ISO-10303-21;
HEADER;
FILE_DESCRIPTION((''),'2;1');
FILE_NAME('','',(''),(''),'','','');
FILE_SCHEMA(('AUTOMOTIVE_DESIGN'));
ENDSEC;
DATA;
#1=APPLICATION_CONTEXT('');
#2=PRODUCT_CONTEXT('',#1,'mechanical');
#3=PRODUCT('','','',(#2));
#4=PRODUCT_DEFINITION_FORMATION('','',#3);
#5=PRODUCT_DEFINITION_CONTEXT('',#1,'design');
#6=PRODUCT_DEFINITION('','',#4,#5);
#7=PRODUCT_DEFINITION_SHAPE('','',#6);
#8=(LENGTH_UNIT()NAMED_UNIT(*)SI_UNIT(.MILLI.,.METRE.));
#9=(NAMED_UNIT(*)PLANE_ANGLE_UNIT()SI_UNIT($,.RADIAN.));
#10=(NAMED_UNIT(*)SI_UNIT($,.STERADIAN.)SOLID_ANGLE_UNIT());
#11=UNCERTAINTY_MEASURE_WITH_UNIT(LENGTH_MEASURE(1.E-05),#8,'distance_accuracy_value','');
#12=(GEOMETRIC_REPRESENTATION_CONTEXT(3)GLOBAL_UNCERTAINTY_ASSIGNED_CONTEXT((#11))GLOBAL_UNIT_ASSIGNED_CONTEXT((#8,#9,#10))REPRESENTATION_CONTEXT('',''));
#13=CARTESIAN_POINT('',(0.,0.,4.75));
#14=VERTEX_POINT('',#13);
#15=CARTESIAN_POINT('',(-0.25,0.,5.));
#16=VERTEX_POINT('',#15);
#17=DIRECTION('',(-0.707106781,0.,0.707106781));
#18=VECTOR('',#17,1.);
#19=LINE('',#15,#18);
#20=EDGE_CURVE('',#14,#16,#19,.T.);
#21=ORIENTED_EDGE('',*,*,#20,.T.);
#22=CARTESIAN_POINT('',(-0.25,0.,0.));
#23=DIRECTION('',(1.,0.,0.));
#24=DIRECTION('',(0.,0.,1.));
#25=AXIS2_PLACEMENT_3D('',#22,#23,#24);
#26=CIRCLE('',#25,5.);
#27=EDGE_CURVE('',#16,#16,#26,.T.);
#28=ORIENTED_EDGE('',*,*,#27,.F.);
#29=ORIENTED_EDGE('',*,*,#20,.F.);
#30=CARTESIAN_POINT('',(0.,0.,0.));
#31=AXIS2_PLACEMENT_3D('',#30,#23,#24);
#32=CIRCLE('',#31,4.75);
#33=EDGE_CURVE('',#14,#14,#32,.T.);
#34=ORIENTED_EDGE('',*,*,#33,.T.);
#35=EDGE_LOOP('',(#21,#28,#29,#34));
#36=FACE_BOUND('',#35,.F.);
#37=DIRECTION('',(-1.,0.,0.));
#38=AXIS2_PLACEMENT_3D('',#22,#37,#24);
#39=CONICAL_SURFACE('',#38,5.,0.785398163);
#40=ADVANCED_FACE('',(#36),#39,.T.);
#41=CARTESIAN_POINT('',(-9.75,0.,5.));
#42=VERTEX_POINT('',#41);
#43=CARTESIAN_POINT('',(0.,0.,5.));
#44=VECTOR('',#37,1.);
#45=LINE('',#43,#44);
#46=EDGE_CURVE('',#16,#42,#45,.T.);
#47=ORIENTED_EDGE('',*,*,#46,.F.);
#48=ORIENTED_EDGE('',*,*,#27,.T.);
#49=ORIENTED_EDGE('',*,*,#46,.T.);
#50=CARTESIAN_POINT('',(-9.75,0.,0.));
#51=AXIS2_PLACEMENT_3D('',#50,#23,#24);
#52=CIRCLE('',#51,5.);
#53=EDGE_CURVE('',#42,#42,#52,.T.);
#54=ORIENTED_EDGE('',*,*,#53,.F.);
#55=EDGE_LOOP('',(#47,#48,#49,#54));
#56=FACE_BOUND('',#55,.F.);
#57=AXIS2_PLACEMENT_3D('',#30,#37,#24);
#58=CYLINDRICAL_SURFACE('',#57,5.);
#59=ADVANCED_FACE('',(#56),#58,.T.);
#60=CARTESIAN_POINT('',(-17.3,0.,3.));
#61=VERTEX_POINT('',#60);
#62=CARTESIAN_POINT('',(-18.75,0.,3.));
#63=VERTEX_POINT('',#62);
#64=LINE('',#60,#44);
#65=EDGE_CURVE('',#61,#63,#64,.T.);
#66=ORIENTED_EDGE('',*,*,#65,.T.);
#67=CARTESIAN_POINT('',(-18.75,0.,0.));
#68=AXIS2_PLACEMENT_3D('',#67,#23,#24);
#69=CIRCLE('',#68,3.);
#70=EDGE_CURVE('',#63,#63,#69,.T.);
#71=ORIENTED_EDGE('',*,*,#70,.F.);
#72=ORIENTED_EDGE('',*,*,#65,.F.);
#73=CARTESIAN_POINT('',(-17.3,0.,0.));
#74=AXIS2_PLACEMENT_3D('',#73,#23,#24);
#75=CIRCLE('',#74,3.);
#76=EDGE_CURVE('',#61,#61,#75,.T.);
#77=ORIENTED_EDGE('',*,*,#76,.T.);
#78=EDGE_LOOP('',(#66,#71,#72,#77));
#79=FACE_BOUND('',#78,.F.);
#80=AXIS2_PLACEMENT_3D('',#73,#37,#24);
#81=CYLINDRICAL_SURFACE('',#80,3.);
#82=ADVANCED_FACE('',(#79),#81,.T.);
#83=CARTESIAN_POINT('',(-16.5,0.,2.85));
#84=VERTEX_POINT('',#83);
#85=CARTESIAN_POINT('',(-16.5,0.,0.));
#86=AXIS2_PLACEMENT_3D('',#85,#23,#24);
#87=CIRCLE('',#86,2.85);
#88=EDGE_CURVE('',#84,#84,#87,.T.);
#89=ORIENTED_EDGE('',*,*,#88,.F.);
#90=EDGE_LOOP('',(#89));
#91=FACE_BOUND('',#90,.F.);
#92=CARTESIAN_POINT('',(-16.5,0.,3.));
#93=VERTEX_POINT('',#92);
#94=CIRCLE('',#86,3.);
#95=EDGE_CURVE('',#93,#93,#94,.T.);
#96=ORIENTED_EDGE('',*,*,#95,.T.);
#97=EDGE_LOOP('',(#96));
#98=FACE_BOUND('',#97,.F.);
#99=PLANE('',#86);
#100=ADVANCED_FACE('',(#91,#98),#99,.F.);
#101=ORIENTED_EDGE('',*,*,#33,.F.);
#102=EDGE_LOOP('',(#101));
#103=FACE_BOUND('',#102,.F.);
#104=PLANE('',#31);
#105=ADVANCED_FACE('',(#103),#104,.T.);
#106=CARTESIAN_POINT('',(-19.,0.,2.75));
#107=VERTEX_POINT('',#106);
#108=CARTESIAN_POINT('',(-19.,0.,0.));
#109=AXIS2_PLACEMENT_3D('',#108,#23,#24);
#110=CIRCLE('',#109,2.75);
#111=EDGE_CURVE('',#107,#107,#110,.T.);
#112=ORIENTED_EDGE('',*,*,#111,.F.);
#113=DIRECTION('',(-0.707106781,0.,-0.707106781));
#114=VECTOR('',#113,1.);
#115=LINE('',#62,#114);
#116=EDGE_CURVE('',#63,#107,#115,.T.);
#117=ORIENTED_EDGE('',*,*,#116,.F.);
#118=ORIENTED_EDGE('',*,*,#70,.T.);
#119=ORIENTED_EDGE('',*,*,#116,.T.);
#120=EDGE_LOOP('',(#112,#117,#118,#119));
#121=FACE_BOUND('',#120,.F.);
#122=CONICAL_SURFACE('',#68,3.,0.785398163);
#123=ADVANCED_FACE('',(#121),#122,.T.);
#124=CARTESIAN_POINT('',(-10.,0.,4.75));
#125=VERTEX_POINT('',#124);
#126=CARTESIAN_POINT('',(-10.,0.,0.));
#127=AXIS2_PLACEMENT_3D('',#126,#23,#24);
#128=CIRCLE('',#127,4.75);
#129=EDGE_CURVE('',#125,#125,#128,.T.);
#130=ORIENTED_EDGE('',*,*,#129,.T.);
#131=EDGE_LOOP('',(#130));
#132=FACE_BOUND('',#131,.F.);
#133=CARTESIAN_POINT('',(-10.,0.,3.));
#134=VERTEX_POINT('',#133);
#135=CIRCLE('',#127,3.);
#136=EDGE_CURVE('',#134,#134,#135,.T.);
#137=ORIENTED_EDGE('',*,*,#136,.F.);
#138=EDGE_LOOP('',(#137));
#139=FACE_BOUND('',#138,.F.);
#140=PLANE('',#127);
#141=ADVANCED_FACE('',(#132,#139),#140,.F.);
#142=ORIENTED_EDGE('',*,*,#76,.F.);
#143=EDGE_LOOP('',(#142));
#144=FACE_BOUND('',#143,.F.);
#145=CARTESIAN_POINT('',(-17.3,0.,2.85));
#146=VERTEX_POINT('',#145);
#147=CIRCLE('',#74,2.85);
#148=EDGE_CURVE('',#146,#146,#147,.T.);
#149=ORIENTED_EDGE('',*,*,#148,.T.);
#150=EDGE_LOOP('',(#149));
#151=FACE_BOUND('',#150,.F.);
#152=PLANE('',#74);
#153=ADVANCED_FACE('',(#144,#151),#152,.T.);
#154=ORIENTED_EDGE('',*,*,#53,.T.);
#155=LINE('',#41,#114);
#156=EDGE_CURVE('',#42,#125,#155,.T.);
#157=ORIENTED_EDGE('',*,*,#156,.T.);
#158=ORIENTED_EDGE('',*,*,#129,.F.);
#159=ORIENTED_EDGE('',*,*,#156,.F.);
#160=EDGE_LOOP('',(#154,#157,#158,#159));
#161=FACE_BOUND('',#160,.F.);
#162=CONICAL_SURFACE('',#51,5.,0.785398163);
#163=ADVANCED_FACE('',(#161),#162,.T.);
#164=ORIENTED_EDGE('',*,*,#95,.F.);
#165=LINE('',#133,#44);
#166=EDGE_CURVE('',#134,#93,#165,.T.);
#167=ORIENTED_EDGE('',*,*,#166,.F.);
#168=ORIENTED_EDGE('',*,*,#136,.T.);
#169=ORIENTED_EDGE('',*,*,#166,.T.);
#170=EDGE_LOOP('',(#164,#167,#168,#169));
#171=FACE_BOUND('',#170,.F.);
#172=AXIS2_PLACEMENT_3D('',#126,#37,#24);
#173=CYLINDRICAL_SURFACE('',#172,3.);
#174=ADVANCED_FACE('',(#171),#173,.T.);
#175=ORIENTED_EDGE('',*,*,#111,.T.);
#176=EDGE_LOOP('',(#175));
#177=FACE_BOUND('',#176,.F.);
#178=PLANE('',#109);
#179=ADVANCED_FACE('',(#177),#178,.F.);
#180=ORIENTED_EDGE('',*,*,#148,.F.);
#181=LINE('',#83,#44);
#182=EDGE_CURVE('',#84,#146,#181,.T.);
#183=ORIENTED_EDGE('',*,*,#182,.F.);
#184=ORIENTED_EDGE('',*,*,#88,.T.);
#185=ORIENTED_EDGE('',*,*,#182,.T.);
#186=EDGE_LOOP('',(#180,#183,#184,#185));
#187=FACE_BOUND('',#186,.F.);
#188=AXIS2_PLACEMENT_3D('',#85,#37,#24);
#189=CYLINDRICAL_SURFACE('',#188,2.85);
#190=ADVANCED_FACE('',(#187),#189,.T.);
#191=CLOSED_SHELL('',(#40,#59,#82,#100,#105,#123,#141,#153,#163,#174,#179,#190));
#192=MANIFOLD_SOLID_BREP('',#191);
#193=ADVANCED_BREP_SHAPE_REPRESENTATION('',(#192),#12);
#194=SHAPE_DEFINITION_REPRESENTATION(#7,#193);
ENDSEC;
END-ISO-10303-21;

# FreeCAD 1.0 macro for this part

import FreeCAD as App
import Part
import Sketcher
Q = App.Units.Quantity


def edges_at(feature, points):
    """Names of the edges that pass closest to the given points."""
    edges = feature.Shape.Edges
    near = lambda p: min(range(len(edges)), key=lambda i: edges[i].distToShape(Part.Vertex(*p))[0])
    return sorted({f"Edge{near(p) + 1}" for p in points})

doc = App.newDocument("Part")
body = doc.addObject("PartDesign::Body", "Body")

sketch1 = body.newObject("Sketcher::SketchObject", "Sketch")
sketch1.AttachmentSupport = (doc.getObject("XZ_Plane"), [""])
sketch1.MapMode = "FlatFace"
sketch1.addGeometry([
    Part.LineSegment(App.Vector(-19, 0, 0), App.Vector(0, 0, 0)),
    Part.LineSegment(App.Vector(0, 0, 0), App.Vector(0, 5, 0)),
    Part.LineSegment(App.Vector(0, 5, 0), App.Vector(-10, 5, 0)),
    Part.LineSegment(App.Vector(-10, 5, 0), App.Vector(-10, 3, 0)),
    Part.LineSegment(App.Vector(-10, 3, 0), App.Vector(-16.5, 3, 0)),
    Part.LineSegment(App.Vector(-16.5, 3, 0), App.Vector(-16.5, 2.85, 0)),
    Part.LineSegment(App.Vector(-16.5, 2.85, 0), App.Vector(-17.3, 2.85, 0)),
    Part.LineSegment(App.Vector(-17.3, 2.85, 0), App.Vector(-17.3, 3, 0)),
    Part.LineSegment(App.Vector(-17.3, 3, 0), App.Vector(-19, 3, 0)),
    Part.LineSegment(App.Vector(-19, 3, 0), App.Vector(-19, 0, 0)),
], False)
sketch1.addConstraint([
    Sketcher.Constraint("Coincident", 0, 2, 1, 1),
    Sketcher.Constraint("Coincident", 1, 2, 2, 1),
    Sketcher.Constraint("Coincident", 2, 2, 3, 1),
    Sketcher.Constraint("Coincident", 3, 2, 4, 1),
    Sketcher.Constraint("Coincident", 4, 2, 5, 1),
    Sketcher.Constraint("Coincident", 5, 2, 6, 1),
    Sketcher.Constraint("Coincident", 6, 2, 7, 1),
    Sketcher.Constraint("Coincident", 7, 2, 8, 1),
    Sketcher.Constraint("Coincident", 8, 2, 9, 1),
    Sketcher.Constraint("Coincident", 9, 2, 0, 1),
    Sketcher.Constraint("Horizontal", 0),
    Sketcher.Constraint("Vertical", 1),
    Sketcher.Constraint("Horizontal", 2),
    Sketcher.Constraint("Vertical", 3),
    Sketcher.Constraint("Horizontal", 4),
    Sketcher.Constraint("Vertical", 5),
    Sketcher.Constraint("Horizontal", 6),
    Sketcher.Constraint("Vertical", 7),
    Sketcher.Constraint("Horizontal", 8),
    Sketcher.Constraint("Vertical", 9),
    Sketcher.Constraint("Coincident", 0, 2, -1, 1),
    Sketcher.Constraint("Horizontal", 4, 2, 7, 2),
    Sketcher.Constraint("DistanceX", 0, 1, 0, 2, Q("19 mm")),
    Sketcher.Constraint("DistanceX", 2, 2, 2, 1, Q("10 mm")),
    Sketcher.Constraint("DistanceY", 1, 1, 1, 2, Q("5 mm")),
    Sketcher.Constraint("DistanceY", 3, 2, 3, 1, Q("2 mm")),
    Sketcher.Constraint("DistanceX", 4, 2, 4, 1, Q("6.5 mm")),
    Sketcher.Constraint("DistanceX", 6, 2, 6, 1, Q("0.8 mm")),
    Sketcher.Constraint("DistanceY", 5, 2, 5, 1, Q("0.15 mm")),
])
revolution = body.newObject("PartDesign::Revolution", "Revolution")
revolution.Profile = sketch1
revolution.ReferenceAxis = (sketch1, ["H_Axis"])
revolution.Angle = 360
doc.recompute()

chamfer = body.newObject("PartDesign::Chamfer", "Chamfer")
chamfer.Base = (revolution, edges_at(revolution, [
    (0, 0, -5),
    (-10, 0, -5),
    (-5, 0, 5),
    (-19, 0, -3),
]))
chamfer.Size = 0.25

doc.recompute()
